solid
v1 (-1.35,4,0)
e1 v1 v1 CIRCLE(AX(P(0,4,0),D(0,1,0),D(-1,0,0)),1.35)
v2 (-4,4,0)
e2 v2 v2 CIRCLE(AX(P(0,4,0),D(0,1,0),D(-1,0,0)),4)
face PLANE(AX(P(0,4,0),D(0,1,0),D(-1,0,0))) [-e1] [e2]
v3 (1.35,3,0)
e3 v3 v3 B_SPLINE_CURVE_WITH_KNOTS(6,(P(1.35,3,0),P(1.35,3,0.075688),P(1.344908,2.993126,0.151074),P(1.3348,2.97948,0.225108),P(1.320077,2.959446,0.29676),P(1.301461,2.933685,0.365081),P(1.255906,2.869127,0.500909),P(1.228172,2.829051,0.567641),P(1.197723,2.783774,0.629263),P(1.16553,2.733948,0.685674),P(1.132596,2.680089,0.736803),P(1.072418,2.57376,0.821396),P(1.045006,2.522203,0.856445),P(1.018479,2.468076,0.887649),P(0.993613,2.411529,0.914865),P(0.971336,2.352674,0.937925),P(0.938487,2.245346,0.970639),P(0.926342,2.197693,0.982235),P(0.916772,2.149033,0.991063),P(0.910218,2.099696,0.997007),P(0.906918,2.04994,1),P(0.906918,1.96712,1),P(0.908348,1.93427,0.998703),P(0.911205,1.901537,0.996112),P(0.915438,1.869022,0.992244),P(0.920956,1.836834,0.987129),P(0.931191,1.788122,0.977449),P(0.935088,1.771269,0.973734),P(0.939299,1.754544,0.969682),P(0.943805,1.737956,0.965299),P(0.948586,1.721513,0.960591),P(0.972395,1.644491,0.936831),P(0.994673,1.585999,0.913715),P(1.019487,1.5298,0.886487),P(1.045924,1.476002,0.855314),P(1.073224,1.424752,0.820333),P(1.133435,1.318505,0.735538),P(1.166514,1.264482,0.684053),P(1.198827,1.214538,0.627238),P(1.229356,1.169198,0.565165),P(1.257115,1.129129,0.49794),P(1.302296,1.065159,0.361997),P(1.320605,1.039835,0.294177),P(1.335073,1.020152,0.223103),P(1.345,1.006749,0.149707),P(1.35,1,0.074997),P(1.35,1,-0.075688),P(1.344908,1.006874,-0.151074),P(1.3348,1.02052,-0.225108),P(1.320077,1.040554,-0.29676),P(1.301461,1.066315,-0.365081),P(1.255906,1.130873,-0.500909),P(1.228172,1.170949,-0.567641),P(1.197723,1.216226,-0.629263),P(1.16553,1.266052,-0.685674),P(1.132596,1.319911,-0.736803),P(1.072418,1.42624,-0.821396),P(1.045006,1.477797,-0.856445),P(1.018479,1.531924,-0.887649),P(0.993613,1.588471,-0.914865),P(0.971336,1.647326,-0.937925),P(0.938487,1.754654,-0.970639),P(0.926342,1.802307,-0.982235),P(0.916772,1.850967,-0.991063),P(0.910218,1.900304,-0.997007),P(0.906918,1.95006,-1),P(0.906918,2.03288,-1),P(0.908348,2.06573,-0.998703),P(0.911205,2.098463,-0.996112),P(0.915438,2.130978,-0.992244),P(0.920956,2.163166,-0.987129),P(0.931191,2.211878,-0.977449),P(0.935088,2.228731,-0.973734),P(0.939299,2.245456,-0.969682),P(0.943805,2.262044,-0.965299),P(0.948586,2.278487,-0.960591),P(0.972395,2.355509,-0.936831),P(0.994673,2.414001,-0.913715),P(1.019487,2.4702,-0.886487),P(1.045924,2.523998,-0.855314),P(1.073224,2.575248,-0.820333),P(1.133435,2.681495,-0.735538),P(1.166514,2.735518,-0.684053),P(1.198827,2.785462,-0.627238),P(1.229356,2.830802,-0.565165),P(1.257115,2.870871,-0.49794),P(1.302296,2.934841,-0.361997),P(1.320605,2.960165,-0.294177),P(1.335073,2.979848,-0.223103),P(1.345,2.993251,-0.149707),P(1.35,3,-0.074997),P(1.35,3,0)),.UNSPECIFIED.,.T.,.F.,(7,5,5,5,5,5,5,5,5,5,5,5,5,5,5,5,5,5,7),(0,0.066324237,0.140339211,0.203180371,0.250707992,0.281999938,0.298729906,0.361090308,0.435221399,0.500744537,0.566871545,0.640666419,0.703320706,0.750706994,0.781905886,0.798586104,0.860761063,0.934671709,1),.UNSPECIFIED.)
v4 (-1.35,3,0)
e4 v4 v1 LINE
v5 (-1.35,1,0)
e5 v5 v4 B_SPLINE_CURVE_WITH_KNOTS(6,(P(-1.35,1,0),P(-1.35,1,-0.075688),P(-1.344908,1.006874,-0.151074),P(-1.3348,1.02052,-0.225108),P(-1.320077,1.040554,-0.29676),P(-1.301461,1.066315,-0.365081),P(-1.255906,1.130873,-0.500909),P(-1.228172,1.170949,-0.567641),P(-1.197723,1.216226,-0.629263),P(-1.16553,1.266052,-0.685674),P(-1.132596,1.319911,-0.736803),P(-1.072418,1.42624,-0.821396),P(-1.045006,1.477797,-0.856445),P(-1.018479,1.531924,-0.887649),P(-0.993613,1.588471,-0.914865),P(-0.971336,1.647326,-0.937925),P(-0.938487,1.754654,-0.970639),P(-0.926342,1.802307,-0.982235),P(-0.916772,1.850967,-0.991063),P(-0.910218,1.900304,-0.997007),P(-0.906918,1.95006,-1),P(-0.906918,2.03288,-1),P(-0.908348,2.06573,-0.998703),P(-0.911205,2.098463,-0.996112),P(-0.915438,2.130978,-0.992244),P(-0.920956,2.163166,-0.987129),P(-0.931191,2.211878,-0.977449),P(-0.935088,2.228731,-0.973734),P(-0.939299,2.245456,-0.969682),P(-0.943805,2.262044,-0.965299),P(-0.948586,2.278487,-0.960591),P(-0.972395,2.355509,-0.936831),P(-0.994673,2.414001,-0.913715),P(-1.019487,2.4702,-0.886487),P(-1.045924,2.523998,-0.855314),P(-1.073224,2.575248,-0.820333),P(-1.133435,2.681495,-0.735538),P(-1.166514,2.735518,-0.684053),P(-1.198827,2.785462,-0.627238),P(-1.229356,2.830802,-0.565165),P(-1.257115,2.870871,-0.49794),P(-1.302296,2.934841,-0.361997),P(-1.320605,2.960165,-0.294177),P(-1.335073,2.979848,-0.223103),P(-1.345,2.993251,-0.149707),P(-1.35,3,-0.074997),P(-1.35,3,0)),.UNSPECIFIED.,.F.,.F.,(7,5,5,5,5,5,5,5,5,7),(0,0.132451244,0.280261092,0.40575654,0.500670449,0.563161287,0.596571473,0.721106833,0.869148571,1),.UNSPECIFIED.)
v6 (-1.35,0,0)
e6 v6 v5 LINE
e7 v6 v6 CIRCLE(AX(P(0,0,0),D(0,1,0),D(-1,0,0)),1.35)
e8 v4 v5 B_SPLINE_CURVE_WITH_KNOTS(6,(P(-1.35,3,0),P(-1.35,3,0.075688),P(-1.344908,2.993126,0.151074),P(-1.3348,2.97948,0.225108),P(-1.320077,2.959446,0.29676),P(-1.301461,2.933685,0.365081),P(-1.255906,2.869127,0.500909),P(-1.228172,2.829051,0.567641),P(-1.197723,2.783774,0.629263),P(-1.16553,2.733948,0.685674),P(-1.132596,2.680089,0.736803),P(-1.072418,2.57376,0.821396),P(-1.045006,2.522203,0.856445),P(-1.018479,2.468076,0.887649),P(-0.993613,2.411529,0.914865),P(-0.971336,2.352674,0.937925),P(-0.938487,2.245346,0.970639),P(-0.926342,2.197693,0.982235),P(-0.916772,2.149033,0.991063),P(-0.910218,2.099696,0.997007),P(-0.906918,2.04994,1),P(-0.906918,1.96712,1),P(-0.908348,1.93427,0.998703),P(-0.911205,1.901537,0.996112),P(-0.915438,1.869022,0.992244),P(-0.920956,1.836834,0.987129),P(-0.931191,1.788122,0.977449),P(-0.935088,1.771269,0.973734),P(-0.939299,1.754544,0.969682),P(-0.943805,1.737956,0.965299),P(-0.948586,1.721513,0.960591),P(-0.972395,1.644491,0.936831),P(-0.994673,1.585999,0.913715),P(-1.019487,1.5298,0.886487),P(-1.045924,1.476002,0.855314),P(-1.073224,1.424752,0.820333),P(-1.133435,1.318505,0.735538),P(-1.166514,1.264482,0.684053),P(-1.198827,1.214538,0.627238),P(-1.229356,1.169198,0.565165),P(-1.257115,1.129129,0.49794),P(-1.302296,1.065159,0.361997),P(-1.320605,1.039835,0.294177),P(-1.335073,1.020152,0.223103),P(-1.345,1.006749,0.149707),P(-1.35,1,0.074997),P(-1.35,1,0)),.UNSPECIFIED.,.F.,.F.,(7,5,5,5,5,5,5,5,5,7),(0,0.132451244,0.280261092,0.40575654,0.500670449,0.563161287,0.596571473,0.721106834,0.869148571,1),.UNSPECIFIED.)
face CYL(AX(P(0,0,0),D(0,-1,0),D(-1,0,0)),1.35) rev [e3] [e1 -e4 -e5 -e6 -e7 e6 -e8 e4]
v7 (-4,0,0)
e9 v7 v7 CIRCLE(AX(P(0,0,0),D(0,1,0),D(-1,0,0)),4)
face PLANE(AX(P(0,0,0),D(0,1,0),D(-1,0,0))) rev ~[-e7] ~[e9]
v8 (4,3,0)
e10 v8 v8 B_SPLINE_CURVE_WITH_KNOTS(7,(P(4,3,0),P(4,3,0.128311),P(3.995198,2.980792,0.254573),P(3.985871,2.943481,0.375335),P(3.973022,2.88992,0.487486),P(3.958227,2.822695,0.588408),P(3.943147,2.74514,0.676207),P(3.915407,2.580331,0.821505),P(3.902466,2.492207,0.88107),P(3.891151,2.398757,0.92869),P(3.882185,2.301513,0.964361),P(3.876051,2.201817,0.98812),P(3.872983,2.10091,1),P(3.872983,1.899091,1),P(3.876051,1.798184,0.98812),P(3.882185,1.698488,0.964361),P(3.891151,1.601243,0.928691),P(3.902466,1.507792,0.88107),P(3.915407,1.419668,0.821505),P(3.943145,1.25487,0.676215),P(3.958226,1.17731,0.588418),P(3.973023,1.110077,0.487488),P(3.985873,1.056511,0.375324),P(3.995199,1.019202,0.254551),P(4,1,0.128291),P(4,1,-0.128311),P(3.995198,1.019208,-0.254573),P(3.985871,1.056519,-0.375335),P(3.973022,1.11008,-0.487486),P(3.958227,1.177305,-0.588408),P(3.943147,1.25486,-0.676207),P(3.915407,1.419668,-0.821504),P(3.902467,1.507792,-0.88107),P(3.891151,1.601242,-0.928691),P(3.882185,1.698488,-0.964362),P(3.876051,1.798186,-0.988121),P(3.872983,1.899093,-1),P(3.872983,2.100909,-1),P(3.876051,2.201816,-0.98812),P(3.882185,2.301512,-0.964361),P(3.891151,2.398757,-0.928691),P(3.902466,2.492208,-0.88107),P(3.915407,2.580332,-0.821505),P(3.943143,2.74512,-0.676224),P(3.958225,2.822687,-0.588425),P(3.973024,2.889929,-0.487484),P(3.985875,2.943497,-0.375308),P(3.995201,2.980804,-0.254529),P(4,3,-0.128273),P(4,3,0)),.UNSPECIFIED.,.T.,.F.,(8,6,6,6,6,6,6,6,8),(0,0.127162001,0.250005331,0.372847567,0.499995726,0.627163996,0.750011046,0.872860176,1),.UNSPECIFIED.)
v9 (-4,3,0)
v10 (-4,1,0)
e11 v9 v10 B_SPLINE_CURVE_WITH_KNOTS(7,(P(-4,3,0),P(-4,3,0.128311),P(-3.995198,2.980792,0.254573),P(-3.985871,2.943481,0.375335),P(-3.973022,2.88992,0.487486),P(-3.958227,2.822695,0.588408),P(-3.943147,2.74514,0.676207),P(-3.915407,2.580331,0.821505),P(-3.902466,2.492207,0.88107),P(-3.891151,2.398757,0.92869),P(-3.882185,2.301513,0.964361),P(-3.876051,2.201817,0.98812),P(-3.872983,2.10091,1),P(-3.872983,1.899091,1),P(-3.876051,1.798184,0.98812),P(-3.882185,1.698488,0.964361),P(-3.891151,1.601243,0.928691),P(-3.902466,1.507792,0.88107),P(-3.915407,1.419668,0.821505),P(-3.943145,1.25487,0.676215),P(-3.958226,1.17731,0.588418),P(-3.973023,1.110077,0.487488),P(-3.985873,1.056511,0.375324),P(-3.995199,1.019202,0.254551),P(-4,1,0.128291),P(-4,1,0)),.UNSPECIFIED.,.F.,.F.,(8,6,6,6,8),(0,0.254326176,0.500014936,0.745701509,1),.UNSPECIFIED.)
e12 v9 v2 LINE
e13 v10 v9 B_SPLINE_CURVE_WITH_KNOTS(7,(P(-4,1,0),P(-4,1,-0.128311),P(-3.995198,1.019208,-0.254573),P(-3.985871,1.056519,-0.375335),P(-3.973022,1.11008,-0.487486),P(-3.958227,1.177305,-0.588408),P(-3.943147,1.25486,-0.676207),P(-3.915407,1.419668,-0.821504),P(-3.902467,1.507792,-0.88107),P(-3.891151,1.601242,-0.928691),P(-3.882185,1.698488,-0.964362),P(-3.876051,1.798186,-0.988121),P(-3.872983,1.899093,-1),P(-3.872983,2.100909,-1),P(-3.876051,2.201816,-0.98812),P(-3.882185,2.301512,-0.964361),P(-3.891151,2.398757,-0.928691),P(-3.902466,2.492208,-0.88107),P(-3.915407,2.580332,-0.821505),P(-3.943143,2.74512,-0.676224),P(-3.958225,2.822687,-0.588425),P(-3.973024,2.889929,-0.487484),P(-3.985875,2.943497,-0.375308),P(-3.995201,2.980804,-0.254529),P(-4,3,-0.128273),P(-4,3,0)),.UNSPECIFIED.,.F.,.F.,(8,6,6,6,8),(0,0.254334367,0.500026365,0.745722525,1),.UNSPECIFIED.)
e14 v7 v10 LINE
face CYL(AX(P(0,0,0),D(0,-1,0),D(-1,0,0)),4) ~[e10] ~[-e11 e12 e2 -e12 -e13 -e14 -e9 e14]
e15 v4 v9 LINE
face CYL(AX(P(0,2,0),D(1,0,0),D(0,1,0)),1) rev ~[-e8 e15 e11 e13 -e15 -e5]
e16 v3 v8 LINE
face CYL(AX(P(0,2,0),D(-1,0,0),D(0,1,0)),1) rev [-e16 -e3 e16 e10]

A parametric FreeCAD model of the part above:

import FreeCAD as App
import Part
import Sketcher
from FreeCAD import Vector

doc = App.newDocument("Part")
body = doc.addObject("PartDesign::Body", "Body")

sketch1 = body.newObject("Sketcher::SketchObject", "Sketch")
sketch1.AttachmentSupport = (doc.getObject("XZ_Plane"), [""])
sketch1.MapMode = "FlatFace"
sketch1.addGeometry(Part.Circle(Vector(0, 0, 0), Vector(0, 0, 1), 4), False)
sketch1.addGeometry(Part.Circle(Vector(0, 0, 0), Vector(0, 0, 1), 1.4), False)
sketch1.addConstraint(Sketcher.Constraint("Coincident", 0, 3, -1, 1))
sketch1.addConstraint(Sketcher.Constraint("Coincident", 1, 3, -1, 1))
sketch1.addConstraint(Sketcher.Constraint("Diameter", 0, 8.0))
sketch1.addConstraint(Sketcher.Constraint("Diameter", 1, 2.7))
pad1 = body.newObject("PartDesign::Pad", "Pad")
pad1.Profile = sketch1
pad1.Length = 4
pad1.Reversed = True

sketch2 = body.newObject("Sketcher::SketchObject", "Sketch001")
sketch2.AttachmentSupport = (doc.getObject("YZ_Plane"), [""])
sketch2.MapMode = "FlatFace"
sketch2.addGeometry(Part.Circle(Vector(2, 0, 0), Vector(0, 0, 1), 1), False)
sketch2.addConstraint(Sketcher.Constraint("PointOnObject", 0, 3, -1))
sketch2.addConstraint(Sketcher.Constraint("Diameter", 0, 2.0))
sketch2.addConstraint(Sketcher.Constraint("DistanceX", -1, 1, 0, 3, 2.0))
pocket1 = body.newObject("PartDesign::Pocket", "Pocket")
pocket1.Profile = sketch2
pocket1.Type = "ThroughAll"
pocket1.Midplane = True

doc.recompute()
